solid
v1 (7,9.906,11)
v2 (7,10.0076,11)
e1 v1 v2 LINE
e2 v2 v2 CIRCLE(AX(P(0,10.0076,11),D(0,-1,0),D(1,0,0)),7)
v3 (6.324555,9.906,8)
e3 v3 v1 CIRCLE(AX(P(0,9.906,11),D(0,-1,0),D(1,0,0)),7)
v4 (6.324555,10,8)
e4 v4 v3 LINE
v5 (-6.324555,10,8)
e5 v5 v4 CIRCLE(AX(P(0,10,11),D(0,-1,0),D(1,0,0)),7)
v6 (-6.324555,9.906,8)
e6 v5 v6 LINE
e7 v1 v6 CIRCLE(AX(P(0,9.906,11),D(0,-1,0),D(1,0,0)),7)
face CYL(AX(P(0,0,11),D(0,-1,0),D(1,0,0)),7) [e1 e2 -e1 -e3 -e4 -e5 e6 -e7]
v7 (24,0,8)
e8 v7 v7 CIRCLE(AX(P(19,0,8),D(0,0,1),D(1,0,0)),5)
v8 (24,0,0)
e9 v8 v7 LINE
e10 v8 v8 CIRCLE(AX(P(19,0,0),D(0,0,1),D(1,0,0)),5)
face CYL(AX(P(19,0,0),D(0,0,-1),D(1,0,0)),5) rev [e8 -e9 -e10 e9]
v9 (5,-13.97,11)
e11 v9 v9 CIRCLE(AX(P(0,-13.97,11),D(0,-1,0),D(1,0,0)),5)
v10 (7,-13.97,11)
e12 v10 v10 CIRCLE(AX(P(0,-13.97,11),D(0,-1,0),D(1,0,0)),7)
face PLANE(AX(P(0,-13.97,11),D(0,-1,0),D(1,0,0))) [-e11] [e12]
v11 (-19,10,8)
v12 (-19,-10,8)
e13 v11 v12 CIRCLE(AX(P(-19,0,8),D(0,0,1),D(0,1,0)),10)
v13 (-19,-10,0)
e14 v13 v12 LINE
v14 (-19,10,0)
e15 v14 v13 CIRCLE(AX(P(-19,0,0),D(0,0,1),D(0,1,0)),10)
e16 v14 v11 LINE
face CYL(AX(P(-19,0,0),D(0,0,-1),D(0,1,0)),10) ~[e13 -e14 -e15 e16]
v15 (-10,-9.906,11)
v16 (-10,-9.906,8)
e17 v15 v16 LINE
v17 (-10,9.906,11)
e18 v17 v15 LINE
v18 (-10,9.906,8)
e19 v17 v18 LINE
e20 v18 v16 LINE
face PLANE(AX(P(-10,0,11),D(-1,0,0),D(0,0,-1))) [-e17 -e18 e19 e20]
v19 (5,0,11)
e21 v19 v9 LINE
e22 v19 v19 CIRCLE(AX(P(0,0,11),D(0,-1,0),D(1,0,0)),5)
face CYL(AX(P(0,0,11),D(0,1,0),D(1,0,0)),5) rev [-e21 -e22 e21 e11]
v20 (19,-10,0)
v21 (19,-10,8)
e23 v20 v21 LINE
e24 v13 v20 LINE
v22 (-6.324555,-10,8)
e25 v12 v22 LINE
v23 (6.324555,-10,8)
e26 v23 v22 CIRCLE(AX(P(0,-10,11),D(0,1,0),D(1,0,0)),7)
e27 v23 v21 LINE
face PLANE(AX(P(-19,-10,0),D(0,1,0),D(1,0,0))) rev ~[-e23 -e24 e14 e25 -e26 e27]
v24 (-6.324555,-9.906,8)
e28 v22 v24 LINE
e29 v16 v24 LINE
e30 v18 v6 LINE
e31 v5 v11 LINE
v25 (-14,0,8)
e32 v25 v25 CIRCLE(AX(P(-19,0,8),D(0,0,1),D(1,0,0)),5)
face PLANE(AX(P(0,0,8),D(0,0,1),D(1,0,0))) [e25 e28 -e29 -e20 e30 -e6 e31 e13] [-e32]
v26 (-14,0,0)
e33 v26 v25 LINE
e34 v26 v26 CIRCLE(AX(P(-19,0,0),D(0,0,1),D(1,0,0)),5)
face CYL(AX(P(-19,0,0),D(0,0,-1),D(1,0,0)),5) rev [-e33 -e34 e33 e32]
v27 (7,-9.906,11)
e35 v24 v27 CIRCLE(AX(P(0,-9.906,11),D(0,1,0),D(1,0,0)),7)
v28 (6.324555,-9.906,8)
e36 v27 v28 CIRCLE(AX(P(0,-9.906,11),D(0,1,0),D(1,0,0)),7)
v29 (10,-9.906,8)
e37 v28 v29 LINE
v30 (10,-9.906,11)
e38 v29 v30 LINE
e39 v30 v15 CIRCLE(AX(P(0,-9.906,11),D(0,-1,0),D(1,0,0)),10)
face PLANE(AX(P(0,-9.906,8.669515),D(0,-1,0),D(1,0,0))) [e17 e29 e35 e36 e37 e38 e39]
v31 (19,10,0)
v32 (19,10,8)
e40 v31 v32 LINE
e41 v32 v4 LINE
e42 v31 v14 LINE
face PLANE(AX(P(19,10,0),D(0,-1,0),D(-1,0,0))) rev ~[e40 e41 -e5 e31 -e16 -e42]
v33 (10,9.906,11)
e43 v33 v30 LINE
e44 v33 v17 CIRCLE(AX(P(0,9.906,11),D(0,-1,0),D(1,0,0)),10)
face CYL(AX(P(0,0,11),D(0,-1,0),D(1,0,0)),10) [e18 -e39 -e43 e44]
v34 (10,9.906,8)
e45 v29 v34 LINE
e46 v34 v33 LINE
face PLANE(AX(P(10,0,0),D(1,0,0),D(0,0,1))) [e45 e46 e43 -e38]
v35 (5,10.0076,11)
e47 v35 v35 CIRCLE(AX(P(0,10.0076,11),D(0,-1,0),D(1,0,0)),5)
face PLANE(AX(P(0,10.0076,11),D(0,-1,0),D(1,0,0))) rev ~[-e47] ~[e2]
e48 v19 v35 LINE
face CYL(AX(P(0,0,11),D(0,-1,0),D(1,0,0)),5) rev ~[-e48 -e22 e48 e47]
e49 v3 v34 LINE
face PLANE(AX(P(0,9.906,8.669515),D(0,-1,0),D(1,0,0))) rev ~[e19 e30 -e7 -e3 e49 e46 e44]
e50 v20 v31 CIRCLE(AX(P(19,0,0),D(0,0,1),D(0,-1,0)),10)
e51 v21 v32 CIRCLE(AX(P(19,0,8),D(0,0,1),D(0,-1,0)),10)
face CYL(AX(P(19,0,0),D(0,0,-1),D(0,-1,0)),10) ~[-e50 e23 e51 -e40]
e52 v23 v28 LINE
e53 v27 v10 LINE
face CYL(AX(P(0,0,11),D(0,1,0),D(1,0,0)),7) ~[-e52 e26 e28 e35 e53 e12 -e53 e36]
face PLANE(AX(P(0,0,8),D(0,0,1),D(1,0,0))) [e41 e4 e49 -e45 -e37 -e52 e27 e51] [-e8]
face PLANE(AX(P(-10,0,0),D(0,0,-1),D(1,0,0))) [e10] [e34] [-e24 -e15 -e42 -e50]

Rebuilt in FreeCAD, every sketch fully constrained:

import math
import FreeCAD as App
import Part
import Sketcher

V = App.Vector

doc = App.newDocument("Part")
params = doc.addObject("Spreadsheet::Sheet", "Params")
for row, (alias, value) in enumerate([
    ("sketch1_diameter", "10 mm"),
    ("sketch1_radius", "10 mm"),
    ("sketch1_width", "38 mm"),
    ("pad1_length", "8 mm"),
    ("sketch2_radius", "10 mm"),
    ("sketch2_height", "11 mm"),
    ("pad2_length", "19.812 mm"),
    ("sketch3_diameter", "14 mm"),
    ("sketch4_diameter", "14 mm"),
    ("sketch4_diameter2", "10 mm"),
    ("pad3_length", "13.97 mm"),
    ("pad3_length2", "10.0076 mm"),
], start=1):
    params.set(f"A{row}", alias)
    params.set(f"B{row}", "=" + value)
    params.setAlias(f"B{row}", alias)

body = doc.addObject("PartDesign::Body", "Body")

# Sketch on XY plane
sketch1 = body.newObject("Sketcher::SketchObject", "Sketch")
sketch1.AttachmentSupport = (doc.getObject("XY_Plane"), [""])
sketch1.MapMode = "FlatFace"
sketch1.addGeometry(Part.LineSegment(V(-19, -10, 0), V(19, -10, 0)), False)
sketch1.addGeometry(Part.ArcOfCircle(Part.Circle(V(19, 0, 0), V(0, 0, 1), 10), math.radians(-90), math.radians(90)), False)
sketch1.addGeometry(Part.LineSegment(V(19, 10, 0), V(-19, 10, 0)), False)
sketch1.addGeometry(Part.ArcOfCircle(Part.Circle(V(-19, 0, 0), V(0, 0, 1), 10), math.radians(90), math.radians(270)), False)
sketch1.addGeometry(Part.Circle(V(-19, 0, 0), V(0, 0, 1), 5), False)
sketch1.addGeometry(Part.Circle(V(19, 0, 0), V(0, 0, 1), 5), False)
sketch1.addConstraint(Sketcher.Constraint("Tangent", 0, 2, 1, 1))
sketch1.addConstraint(Sketcher.Constraint("Tangent", 1, 2, 2, 1))
sketch1.addConstraint(Sketcher.Constraint("Tangent", 2, 2, 3, 1))
sketch1.addConstraint(Sketcher.Constraint("Tangent", 3, 2, 0, 1))
sketch1.addConstraint(Sketcher.Constraint("Horizontal", 0))
sketch1.addConstraint(Sketcher.Constraint("Horizontal", 2))
sketch1.addConstraint(Sketcher.Constraint("Coincident", 4, 3, 3, 3))
sketch1.addConstraint(Sketcher.Constraint("Coincident", 5, 3, 1, 3))
sketch1.addConstraint(Sketcher.Constraint("Equal", 4, 5))
sketch1.addConstraint(Sketcher.Constraint("Symmetric", 1, 3, 3, 3, -1, 1))
sketch1.addConstraint(Sketcher.Constraint("Diameter", 4, 10.0))
sketch1.addConstraint(Sketcher.Constraint("Radius", 1, 10.0))
sketch1.addConstraint(Sketcher.Constraint("DistanceX", 0, 1, 0, 2, 38.0))
sketch1.setExpression("Constraints[10]", "Params.sketch1_diameter")
sketch1.setExpression("Constraints[11]", "Params.sketch1_radius")
sketch1.setExpression("Constraints[12]", "Params.sketch1_width")
pad1 = body.newObject("PartDesign::Pad", "Pad")
pad1.Profile = sketch1
pad1.setExpression("Length", "Params.pad1_length")

# Sketch on XZ plane
sketch2 = body.newObject("Sketcher::SketchObject", "Sketch001")
sketch2.AttachmentSupport = (doc.getObject("XZ_Plane"), [""])
sketch2.MapMode = "FlatFace"
sketch2.addGeometry(Part.LineSegment(V(10, 0, 0), V(10, 11, 0)), False)
sketch2.addGeometry(Part.ArcOfCircle(Part.Circle(V(0, 11, 0), V(0, 0, 1), 10), math.radians(0), math.radians(180)), False)
sketch2.addGeometry(Part.LineSegment(V(-10, 11, 0), V(-10, 0, 0)), False)
sketch2.addGeometry(Part.LineSegment(V(-10, 0, 0), V(10, 0, 0)), False)
sketch2.addConstraint(Sketcher.Constraint("Tangent", 0, 2, 1, 1))
sketch2.addConstraint(Sketcher.Constraint("Tangent", 1, 2, 2, 1))
sketch2.addConstraint(Sketcher.Constraint("Coincident", 2, 2, 3, 1))
sketch2.addConstraint(Sketcher.Constraint("Coincident", 3, 2, 0, 1))
sketch2.addConstraint(Sketcher.Constraint("Vertical", 0))
sketch2.addConstraint(Sketcher.Constraint("Vertical", 2))
sketch2.addConstraint(Sketcher.Constraint("Horizontal", 3))
sketch2.addConstraint(Sketcher.Constraint("Symmetric", 2, 2, 3, 2, -1, 1))
sketch2.addConstraint(Sketcher.Constraint("Radius", 1, 10.0))
sketch2.addConstraint(Sketcher.Constraint("DistanceY", 0, 1, 0, 2, 11.0))
sketch2.setExpression("Constraints[8]", "Params.sketch2_radius")
sketch2.setExpression("Constraints[9]", "Params.sketch2_height")
pad2 = body.newObject("PartDesign::Pad", "Pad001")
pad2.Profile = sketch2
pad2.setExpression("Length", "Params.pad2_length")
pad2.Midplane = True

# Sketch on XZ plane
sketch3 = body.newObject("Sketcher::SketchObject", "Sketch002")
sketch3.AttachmentSupport = (doc.getObject("XZ_Plane"), [""])
sketch3.MapMode = "FlatFace"
sketch3.addGeometry(Part.Circle(V(0, 11, 0), V(0, 0, 1), 7), False)
sketch3.addConstraint(Sketcher.Constraint("PointOnObject", 0, 3, -2))
sketch3.addConstraint(Sketcher.Constraint("Diameter", 0, 14.0))
sketch3.addConstraint(Sketcher.Constraint("DistanceY", -1, 1, 0, 3, 11.0))
sketch3.setExpression("Constraints[1]", "Params.sketch3_diameter")
pocket1 = body.newObject("PartDesign::Pocket", "Pocket")
pocket1.Profile = sketch3
pocket1.Type = "ThroughAll"
pocket1.Midplane = True

# Sketch on XZ plane
sketch4 = body.newObject("Sketcher::SketchObject", "Sketch003")
sketch4.AttachmentSupport = (doc.getObject("XZ_Plane"), [""])
sketch4.MapMode = "FlatFace"
sketch4.addGeometry(Part.Circle(V(0, 11, 0), V(0, 0, 1), 7), False)
sketch4.addGeometry(Part.Circle(V(0, 11, 0), V(0, 0, 1), 5), False)
sketch4.addConstraint(Sketcher.Constraint("Coincident", 1, 3, 0, 3))
sketch4.addConstraint(Sketcher.Constraint("PointOnObject", 0, 3, -2))
sketch4.addConstraint(Sketcher.Constraint("Diameter", 0, 14.0))
sketch4.addConstraint(Sketcher.Constraint("Diameter", 1, 10.0))
sketch4.addConstraint(Sketcher.Constraint("DistanceY", -1, 1, 0, 3, 11.0))
sketch4.setExpression("Constraints[2]", "Params.sketch4_diameter")
sketch4.setExpression("Constraints[3]", "Params.sketch4_diameter2")
pad3 = body.newObject("PartDesign::Pad", "Pad002")
pad3.Profile = sketch4
pad3.Type = "TwoLengths"
pad3.setExpression("Length", "Params.pad3_length")
pad3.setExpression("Length2", "Params.pad3_length2")

doc.recompute()
